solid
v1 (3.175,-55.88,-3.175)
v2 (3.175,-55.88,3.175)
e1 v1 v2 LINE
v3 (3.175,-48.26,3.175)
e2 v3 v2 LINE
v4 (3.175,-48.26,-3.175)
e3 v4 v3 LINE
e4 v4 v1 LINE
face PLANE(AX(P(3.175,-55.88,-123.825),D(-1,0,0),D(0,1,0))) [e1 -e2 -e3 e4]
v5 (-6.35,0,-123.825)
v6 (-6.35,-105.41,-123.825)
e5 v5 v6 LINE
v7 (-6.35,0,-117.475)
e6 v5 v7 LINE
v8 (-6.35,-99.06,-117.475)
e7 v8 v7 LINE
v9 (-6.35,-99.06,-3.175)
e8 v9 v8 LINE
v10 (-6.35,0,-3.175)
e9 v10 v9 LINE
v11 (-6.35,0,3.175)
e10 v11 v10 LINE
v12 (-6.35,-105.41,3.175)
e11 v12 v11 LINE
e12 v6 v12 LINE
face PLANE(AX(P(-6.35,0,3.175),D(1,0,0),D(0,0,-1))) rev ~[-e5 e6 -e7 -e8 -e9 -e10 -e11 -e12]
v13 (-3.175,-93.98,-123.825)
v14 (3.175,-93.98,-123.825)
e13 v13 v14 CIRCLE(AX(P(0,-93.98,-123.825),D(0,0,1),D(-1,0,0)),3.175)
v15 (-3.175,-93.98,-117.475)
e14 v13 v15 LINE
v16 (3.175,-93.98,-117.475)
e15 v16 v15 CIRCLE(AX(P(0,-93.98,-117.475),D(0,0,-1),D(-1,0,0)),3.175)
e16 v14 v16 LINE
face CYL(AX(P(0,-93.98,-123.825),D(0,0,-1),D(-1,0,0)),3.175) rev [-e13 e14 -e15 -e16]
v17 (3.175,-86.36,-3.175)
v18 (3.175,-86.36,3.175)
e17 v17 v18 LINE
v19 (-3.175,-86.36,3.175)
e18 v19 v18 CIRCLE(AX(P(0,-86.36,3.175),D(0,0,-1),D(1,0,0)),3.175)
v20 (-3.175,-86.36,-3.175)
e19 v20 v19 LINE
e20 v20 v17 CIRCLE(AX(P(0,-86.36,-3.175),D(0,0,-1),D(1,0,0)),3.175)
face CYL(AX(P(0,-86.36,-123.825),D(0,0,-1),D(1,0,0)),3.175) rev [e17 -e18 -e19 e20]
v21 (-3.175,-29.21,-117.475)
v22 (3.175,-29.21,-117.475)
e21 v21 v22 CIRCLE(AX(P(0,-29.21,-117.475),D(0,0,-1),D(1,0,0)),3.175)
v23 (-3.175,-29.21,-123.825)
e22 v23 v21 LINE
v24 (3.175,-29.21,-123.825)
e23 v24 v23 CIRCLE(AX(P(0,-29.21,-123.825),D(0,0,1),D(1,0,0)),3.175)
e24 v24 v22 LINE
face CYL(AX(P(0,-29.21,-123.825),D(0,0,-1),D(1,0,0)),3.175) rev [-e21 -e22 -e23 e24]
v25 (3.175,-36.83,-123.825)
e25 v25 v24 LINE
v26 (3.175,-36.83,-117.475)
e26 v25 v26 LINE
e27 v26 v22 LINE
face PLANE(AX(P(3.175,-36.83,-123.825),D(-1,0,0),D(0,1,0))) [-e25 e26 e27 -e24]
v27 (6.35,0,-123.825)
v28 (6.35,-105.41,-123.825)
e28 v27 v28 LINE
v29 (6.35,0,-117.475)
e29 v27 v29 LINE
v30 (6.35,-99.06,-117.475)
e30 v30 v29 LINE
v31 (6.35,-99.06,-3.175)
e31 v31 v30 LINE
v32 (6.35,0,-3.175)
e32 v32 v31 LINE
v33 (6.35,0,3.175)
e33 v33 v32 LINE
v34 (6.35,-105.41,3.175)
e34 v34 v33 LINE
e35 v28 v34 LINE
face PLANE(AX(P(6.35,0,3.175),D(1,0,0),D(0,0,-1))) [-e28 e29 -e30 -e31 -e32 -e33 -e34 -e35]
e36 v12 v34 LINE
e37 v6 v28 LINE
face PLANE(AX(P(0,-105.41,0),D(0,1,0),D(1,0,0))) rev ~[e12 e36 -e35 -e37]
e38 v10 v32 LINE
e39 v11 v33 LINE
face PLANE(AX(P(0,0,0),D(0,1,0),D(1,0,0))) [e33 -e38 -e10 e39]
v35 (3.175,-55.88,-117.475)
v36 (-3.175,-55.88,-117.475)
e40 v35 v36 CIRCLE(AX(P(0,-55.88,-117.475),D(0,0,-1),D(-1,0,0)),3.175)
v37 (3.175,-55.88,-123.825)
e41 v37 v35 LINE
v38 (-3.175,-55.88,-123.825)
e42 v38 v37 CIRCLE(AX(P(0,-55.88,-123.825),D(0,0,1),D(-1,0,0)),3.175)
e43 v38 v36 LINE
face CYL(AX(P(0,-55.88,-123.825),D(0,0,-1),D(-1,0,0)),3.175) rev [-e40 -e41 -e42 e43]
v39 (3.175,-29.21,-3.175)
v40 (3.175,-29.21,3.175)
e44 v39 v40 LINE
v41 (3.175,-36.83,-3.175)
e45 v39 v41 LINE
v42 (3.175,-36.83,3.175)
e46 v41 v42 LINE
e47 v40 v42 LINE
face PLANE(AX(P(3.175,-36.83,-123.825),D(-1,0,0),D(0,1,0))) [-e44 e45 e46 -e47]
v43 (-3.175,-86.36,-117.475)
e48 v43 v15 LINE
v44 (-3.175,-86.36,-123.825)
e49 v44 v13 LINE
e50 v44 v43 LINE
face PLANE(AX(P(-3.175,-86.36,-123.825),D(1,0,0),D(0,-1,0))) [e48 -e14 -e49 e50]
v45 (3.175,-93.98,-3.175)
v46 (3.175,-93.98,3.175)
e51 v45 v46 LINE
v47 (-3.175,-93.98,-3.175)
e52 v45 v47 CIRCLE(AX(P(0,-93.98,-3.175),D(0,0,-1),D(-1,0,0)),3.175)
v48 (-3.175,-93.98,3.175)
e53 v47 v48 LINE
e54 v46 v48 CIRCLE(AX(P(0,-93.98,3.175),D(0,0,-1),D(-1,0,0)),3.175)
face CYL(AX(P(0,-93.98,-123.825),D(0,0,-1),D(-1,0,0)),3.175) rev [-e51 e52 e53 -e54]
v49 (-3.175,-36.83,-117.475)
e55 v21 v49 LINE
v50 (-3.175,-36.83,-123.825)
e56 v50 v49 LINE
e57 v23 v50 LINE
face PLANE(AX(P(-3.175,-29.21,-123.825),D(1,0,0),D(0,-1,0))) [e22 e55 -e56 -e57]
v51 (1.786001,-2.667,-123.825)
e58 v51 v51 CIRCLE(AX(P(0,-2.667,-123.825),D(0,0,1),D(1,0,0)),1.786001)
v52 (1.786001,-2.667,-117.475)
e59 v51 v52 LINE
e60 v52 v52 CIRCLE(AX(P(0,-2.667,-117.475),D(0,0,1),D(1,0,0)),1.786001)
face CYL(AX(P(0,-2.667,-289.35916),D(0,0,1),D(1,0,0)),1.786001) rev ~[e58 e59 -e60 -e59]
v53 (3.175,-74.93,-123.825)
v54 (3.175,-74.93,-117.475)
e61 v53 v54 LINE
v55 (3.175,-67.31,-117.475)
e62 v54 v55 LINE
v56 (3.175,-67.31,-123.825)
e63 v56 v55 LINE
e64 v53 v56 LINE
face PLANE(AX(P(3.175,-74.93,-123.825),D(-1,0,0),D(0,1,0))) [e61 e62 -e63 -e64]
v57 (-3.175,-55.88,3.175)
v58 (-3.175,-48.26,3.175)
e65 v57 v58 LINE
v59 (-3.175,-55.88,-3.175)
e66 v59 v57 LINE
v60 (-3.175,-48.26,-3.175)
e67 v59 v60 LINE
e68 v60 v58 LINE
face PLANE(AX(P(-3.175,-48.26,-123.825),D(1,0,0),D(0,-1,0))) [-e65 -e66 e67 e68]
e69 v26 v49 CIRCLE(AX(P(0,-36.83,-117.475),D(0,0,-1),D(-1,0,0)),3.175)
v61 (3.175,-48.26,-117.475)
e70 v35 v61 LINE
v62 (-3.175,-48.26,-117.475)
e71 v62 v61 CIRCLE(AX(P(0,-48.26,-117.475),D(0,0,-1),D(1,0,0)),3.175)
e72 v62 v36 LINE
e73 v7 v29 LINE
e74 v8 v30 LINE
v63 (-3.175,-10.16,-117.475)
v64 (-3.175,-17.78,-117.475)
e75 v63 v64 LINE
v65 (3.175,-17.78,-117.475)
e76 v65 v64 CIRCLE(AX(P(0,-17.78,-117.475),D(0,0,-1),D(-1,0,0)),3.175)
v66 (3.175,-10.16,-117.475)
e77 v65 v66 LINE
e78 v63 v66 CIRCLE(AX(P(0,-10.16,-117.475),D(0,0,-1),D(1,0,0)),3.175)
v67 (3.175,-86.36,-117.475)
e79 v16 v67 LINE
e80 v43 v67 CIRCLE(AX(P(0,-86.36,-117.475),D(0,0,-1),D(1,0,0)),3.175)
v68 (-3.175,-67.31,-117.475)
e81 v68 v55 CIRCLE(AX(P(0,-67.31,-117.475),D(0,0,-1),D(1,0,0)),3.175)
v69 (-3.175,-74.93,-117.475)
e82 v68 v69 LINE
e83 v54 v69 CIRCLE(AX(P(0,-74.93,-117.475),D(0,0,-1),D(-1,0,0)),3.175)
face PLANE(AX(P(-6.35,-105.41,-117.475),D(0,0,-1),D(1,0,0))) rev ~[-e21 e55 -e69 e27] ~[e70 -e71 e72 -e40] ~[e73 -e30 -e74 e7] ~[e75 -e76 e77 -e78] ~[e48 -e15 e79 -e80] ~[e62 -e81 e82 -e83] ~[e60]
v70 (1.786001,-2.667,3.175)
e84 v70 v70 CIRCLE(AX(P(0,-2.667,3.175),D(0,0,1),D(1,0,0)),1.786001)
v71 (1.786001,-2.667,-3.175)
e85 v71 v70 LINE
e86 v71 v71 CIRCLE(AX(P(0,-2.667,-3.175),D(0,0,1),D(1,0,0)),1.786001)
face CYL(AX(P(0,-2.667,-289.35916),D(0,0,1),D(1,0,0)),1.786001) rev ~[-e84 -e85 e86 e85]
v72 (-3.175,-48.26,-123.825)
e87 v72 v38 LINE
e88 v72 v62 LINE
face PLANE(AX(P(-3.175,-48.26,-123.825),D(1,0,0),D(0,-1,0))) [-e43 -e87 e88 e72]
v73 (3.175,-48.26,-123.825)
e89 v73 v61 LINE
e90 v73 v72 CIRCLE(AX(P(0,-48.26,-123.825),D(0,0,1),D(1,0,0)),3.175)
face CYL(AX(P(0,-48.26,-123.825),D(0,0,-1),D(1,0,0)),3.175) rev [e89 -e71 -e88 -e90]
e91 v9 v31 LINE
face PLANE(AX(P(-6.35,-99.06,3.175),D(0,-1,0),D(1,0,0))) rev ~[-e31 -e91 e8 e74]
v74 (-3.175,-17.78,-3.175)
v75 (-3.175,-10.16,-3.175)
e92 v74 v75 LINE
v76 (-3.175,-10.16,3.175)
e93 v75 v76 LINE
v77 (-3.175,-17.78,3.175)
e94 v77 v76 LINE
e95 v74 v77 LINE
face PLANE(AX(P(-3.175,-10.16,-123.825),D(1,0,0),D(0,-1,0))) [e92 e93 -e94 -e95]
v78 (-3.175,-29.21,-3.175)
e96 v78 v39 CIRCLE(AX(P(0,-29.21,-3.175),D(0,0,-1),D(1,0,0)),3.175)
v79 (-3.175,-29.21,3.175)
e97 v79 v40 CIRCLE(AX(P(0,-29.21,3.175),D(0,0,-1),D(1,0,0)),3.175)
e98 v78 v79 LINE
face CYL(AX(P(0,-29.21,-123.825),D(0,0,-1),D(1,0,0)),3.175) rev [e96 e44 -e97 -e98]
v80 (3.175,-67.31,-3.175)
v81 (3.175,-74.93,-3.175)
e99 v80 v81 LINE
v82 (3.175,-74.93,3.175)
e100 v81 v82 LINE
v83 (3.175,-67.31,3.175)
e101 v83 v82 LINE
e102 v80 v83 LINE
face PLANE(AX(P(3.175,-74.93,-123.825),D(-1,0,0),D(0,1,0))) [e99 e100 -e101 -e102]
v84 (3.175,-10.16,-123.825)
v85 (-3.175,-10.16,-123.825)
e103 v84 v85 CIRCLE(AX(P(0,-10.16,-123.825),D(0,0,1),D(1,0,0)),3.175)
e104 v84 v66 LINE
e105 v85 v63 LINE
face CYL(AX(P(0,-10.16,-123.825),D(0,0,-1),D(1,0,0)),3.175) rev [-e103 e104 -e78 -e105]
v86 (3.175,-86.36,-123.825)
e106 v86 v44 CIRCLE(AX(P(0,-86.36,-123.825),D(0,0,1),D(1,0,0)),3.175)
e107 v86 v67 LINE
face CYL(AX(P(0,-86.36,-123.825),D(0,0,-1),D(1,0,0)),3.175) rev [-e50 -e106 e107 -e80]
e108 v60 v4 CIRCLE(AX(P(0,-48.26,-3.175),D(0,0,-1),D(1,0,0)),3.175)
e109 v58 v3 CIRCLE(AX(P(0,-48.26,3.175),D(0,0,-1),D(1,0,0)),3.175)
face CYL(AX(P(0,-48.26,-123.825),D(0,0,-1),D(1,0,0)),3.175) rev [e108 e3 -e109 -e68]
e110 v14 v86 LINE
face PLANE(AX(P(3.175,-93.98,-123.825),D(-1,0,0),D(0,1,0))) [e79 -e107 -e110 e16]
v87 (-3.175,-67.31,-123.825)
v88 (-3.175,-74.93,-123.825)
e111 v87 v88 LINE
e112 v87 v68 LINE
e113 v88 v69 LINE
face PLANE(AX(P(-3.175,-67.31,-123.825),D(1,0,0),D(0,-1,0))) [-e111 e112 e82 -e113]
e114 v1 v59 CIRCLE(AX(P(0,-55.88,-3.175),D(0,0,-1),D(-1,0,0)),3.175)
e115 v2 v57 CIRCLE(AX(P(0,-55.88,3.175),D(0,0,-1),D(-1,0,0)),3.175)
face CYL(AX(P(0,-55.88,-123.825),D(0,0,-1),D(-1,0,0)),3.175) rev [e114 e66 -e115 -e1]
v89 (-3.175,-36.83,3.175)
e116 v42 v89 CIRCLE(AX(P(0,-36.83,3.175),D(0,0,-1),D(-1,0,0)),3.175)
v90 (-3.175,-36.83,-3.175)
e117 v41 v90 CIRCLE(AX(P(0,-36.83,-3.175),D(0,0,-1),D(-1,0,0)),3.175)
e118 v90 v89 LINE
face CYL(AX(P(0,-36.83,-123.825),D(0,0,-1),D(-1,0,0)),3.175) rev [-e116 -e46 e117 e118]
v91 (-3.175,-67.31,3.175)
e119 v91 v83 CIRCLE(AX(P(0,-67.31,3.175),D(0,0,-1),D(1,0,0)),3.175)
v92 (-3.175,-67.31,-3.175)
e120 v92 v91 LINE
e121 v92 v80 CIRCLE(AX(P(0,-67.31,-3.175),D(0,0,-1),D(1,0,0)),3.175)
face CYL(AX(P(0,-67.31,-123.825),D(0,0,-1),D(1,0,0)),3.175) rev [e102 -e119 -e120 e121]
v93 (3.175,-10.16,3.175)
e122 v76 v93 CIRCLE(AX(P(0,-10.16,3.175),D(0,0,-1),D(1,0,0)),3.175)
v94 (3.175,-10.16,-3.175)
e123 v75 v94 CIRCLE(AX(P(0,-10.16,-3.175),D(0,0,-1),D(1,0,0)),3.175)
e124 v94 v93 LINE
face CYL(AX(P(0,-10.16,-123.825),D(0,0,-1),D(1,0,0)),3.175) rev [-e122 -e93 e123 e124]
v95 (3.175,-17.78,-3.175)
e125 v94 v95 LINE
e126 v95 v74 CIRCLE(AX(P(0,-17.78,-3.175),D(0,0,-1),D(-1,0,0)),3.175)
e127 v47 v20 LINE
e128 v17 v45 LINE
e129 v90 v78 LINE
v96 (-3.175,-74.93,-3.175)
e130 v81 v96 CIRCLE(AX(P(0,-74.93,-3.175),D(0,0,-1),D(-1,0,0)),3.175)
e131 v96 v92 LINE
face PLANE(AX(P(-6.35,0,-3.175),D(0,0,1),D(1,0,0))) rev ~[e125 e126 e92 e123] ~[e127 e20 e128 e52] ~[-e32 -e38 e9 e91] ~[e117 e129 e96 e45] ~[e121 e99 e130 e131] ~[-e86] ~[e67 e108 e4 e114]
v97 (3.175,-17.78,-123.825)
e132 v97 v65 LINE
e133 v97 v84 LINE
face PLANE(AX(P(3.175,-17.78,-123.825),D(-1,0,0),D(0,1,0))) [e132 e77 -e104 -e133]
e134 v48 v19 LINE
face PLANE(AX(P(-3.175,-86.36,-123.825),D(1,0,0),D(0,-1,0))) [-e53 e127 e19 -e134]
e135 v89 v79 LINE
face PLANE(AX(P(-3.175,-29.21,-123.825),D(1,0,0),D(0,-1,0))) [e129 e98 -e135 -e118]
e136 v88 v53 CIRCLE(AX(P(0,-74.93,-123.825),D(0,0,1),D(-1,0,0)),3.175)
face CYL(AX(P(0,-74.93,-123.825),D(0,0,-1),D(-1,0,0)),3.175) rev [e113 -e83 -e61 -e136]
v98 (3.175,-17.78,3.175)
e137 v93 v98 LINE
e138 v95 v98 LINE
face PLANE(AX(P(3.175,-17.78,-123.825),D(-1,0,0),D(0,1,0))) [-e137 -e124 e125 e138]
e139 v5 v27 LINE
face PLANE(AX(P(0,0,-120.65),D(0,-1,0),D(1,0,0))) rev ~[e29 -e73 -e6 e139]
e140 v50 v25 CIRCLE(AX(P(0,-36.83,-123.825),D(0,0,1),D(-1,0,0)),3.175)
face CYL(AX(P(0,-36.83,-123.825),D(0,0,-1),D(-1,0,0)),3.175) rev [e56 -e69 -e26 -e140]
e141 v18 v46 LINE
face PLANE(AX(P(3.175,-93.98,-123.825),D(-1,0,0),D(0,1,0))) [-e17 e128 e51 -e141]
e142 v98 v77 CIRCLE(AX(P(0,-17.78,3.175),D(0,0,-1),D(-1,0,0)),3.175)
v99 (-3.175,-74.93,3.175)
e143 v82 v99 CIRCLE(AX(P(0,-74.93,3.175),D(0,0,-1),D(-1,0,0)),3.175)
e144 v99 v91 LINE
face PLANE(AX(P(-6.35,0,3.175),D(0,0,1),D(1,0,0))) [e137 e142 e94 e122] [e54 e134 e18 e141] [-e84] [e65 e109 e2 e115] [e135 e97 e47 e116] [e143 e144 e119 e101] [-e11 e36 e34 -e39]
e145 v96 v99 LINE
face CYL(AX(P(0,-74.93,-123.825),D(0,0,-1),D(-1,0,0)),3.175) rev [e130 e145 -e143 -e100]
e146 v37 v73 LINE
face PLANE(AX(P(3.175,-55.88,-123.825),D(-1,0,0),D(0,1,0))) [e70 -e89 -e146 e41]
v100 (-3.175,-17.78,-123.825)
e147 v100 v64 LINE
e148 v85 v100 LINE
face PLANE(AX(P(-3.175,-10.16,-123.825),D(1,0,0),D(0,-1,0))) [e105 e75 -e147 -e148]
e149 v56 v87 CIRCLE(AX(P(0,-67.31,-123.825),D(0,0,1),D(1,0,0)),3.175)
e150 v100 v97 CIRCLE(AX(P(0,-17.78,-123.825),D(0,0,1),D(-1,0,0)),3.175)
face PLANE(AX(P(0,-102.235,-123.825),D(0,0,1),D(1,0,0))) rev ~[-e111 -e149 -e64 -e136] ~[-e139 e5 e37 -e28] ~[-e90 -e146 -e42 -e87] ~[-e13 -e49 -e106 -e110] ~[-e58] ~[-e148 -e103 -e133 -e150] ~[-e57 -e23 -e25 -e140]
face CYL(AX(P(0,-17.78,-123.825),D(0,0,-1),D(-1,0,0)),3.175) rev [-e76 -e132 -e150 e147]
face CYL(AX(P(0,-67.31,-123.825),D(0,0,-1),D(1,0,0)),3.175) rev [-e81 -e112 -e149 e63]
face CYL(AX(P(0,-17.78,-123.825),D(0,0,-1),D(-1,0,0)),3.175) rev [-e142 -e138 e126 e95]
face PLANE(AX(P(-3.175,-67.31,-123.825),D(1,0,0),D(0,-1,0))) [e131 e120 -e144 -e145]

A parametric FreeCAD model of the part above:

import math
import FreeCAD as App
import Part
import Sketcher
from FreeCAD import Vector
Q = App.Units.Quantity

doc = App.newDocument("Part")
body = doc.addObject("PartDesign::Body", "Body")

sketch1 = body.newObject("Sketcher::SketchObject", "Sketch")
sketch1.AttachmentSupport = (doc.getObject("XZ_Plane"), [""])
sketch1.MapMode = "FlatFace"
sketch1.addGeometry([
    Part.LineSegment(Vector(-6, -3, 0), Vector(-6, 3, 0)),
    Part.LineSegment(Vector(-6, 3, 0), Vector(6, 3, 0)),
    Part.LineSegment(Vector(6, 3, 0), Vector(6, -3, 0)),
    Part.LineSegment(Vector(6, -3, 0), Vector(-6, -3, 0)),
], False)
sketch1.addConstraint([
    Sketcher.Constraint("Coincident", 0, 2, 1, 1),
    Sketcher.Constraint("Coincident", 1, 2, 2, 1),
    Sketcher.Constraint("Coincident", 2, 2, 3, 1),
    Sketcher.Constraint("Coincident", 3, 2, 0, 1),
    Sketcher.Constraint("Vertical", 0),
    Sketcher.Constraint("Horizontal", 1),
    Sketcher.Constraint("Vertical", 2),
    Sketcher.Constraint("Horizontal", 3),
    Sketcher.Constraint("Symmetric", 0, 2, 2, 2, -1, 1),
    Sketcher.Constraint("DistanceX", 1, 1, 1, 2, Q("0.5 in")),
    Sketcher.Constraint("DistanceY", 0, 1, 0, 2, Q("0.25 in")),
])
pad1 = body.newObject("PartDesign::Pad", "Pad")
pad1.Profile = sketch1
pad1.Length = Q("4.15 in")

sketch2 = body.newObject("Sketcher::SketchObject", "Sketch001")
sketch2.AttachmentSupport = (doc.getObject("XY_Plane"), [""])
sketch2.MapMode = "FlatFace"
sketch2.AttachmentOffset = App.Placement(Vector(0, 0, 0.125 * 25.4), App.Rotation())
sketch2.addGeometry([
    Part.LineSegment(Vector(-6, -99, 0), Vector(-6, -105, 0)),
    Part.LineSegment(Vector(-6, -105, 0), Vector(6, -105, 0)),
    Part.LineSegment(Vector(6, -105, 0), Vector(6, -99, 0)),
    Part.LineSegment(Vector(6, -99, 0), Vector(-6, -99, 0)),
], False)
sketch2.addConstraint([
    Sketcher.Constraint("Coincident", 0, 2, 1, 1),
    Sketcher.Constraint("Coincident", 1, 2, 2, 1),
    Sketcher.Constraint("Coincident", 2, 2, 3, 1),
    Sketcher.Constraint("Coincident", 3, 2, 0, 1),
    Sketcher.Constraint("Vertical", 0),
    Sketcher.Constraint("Horizontal", 1),
    Sketcher.Constraint("Vertical", 2),
    Sketcher.Constraint("Horizontal", 3),
    Sketcher.Constraint("DistanceX", 1, 1, 1, 2, Q("0.5 in")),
    Sketcher.Constraint("DistanceY", 0, 2, 0, 1, Q("0.25 in")),
    Sketcher.Constraint("DistanceY", 2, 2, -1, 1, Q("3.9 in")),
    Sketcher.Constraint("DistanceX", 0, 2, -1, 1, Q("0.25 in")),
])
pad2 = body.newObject("PartDesign::Pad", "Pad001")
pad2.Profile = sketch2
pad2.Length = Q("5 in")
pad2.Reversed = True

sketch3 = body.newObject("Sketcher::SketchObject", "Sketch002")
sketch3.AttachmentSupport = (doc.getObject("XZ_Plane"), [""])
sketch3.MapMode = "FlatFace"
sketch3.AttachmentOffset = App.Placement(Vector(0, 0, 4.15 * 25.4), App.Rotation())
sketch3.addGeometry([
    Part.LineSegment(Vector(-6, -117, 0), Vector(-6, -124, 0)),
    Part.LineSegment(Vector(-6, -124, 0), Vector(6, -124, 0)),
    Part.LineSegment(Vector(6, -124, 0), Vector(6, -117, 0)),
    Part.LineSegment(Vector(6, -117, 0), Vector(-6, -117, 0)),
], False)
sketch3.addConstraint([
    Sketcher.Constraint("Coincident", 0, 2, 1, 1),
    Sketcher.Constraint("Coincident", 1, 2, 2, 1),
    Sketcher.Constraint("Coincident", 2, 2, 3, 1),
    Sketcher.Constraint("Coincident", 3, 2, 0, 1),
    Sketcher.Constraint("Vertical", 0),
    Sketcher.Constraint("Horizontal", 1),
    Sketcher.Constraint("Vertical", 2),
    Sketcher.Constraint("Horizontal", 3),
    Sketcher.Constraint("DistanceX", 1, 1, 1, 2, Q("0.5 in")),
    Sketcher.Constraint("DistanceY", 0, 2, 0, 1, Q("0.25 in")),
    Sketcher.Constraint("DistanceX", 0, 2, -1, 1, Q("0.25 in")),
    Sketcher.Constraint("DistanceY", 0, 2, -1, 1, Q("4.875 in")),
])
pad3 = body.newObject("PartDesign::Pad", "Pad002")
pad3.Profile = sketch3
pad3.Length = Q("4.15 in")
pad3.Reversed = True

sketch4 = body.newObject("Sketcher::SketchObject", "Sketch003")
sketch4.AttachmentSupport = (doc.getObject("XY_Plane"), [""])
sketch4.MapMode = "FlatFace"
sketch4.AttachmentOffset = App.Placement(Vector(0, 0, -4.875 * 25.4), App.Rotation())
sketch4.addGeometry([
    Part.LineSegment(Vector(-3.2, -17.8, 0), Vector(-3.2, -10.2, 0)),
    Part.ArcOfCircle(Part.Circle(Vector(0, -10.2, 0), Vector(0, 0, 1), 3.2), math.radians(0), math.radians(180)),
    Part.LineSegment(Vector(3.2, -10.2, 0), Vector(3.2, -17.8, 0)),
    Part.ArcOfCircle(Part.Circle(Vector(0, -17.8, 0), Vector(0, 0, 1), 3.2), math.radians(180), math.radians(360)),
], False)
sketch4.addConstraint([
    Sketcher.Constraint("Tangent", 0, 2, 1, 2),
    Sketcher.Constraint("Tangent", 1, 1, 2, 1),
    Sketcher.Constraint("Tangent", 2, 2, 3, 2),
    Sketcher.Constraint("Tangent", 3, 1, 0, 1),
    Sketcher.Constraint("Vertical", 0),
    Sketcher.Constraint("Vertical", 2),
    Sketcher.Constraint("PointOnObject", 1, 3, -2),
    Sketcher.Constraint("DistanceY", 0, 1, 0, 2, Q("0.3 in")),
    Sketcher.Constraint("Radius", 1, Q("0.125 in")),
    Sketcher.Constraint("DistanceY", 1, 3, -1, 1, Q("0.4 in")),
])
pocket1 = body.newObject("PartDesign::Pocket", "Pocket")
pocket1.Profile = sketch4
pocket1.Type = "ThroughAll"
pocket1.Reversed = True
doc.recompute()

linearpattern = body.newObject("PartDesign::LinearPattern", "LinearPattern")
linearpattern.Originals = [pocket1]
linearpattern.Direction = (doc.getObject("Y_Axis"), [""])
linearpattern.Mode = "offset"
linearpattern.Offset = Q("0.75 in")
linearpattern.Occurrences = 5
linearpattern.Reversed = True
body.Tip = linearpattern

sketch5 = body.newObject("Sketcher::SketchObject", "Sketch004")
sketch5.AttachmentSupport = (doc.getObject("XY_Plane"), [""])
sketch5.MapMode = "FlatFace"
sketch5.AttachmentOffset = App.Placement(Vector(0, 0, -4.875 * 25.4), App.Rotation())
sketch5.addGeometry(Part.Circle(Vector(0, -2.7, 0), Vector(0, 0, 1), 1.8), False)
sketch5.addConstraint([
    Sketcher.Constraint("PointOnObject", 0, 3, -2),
    Sketcher.Constraint("Diameter", 0, 3.572002),
    Sketcher.Constraint("DistanceY", 0, 3, -1, 1, Q("0.105 in")),
])
doc.recompute()
hole = body.newObject("PartDesign::Hole", "Hole")
hole.Profile = sketch5
hole.ThreadType = "None"
hole.Diameter = 3.572002
hole.DepthType = "ThroughAll"
hole.Reversed = True

doc.recompute()
